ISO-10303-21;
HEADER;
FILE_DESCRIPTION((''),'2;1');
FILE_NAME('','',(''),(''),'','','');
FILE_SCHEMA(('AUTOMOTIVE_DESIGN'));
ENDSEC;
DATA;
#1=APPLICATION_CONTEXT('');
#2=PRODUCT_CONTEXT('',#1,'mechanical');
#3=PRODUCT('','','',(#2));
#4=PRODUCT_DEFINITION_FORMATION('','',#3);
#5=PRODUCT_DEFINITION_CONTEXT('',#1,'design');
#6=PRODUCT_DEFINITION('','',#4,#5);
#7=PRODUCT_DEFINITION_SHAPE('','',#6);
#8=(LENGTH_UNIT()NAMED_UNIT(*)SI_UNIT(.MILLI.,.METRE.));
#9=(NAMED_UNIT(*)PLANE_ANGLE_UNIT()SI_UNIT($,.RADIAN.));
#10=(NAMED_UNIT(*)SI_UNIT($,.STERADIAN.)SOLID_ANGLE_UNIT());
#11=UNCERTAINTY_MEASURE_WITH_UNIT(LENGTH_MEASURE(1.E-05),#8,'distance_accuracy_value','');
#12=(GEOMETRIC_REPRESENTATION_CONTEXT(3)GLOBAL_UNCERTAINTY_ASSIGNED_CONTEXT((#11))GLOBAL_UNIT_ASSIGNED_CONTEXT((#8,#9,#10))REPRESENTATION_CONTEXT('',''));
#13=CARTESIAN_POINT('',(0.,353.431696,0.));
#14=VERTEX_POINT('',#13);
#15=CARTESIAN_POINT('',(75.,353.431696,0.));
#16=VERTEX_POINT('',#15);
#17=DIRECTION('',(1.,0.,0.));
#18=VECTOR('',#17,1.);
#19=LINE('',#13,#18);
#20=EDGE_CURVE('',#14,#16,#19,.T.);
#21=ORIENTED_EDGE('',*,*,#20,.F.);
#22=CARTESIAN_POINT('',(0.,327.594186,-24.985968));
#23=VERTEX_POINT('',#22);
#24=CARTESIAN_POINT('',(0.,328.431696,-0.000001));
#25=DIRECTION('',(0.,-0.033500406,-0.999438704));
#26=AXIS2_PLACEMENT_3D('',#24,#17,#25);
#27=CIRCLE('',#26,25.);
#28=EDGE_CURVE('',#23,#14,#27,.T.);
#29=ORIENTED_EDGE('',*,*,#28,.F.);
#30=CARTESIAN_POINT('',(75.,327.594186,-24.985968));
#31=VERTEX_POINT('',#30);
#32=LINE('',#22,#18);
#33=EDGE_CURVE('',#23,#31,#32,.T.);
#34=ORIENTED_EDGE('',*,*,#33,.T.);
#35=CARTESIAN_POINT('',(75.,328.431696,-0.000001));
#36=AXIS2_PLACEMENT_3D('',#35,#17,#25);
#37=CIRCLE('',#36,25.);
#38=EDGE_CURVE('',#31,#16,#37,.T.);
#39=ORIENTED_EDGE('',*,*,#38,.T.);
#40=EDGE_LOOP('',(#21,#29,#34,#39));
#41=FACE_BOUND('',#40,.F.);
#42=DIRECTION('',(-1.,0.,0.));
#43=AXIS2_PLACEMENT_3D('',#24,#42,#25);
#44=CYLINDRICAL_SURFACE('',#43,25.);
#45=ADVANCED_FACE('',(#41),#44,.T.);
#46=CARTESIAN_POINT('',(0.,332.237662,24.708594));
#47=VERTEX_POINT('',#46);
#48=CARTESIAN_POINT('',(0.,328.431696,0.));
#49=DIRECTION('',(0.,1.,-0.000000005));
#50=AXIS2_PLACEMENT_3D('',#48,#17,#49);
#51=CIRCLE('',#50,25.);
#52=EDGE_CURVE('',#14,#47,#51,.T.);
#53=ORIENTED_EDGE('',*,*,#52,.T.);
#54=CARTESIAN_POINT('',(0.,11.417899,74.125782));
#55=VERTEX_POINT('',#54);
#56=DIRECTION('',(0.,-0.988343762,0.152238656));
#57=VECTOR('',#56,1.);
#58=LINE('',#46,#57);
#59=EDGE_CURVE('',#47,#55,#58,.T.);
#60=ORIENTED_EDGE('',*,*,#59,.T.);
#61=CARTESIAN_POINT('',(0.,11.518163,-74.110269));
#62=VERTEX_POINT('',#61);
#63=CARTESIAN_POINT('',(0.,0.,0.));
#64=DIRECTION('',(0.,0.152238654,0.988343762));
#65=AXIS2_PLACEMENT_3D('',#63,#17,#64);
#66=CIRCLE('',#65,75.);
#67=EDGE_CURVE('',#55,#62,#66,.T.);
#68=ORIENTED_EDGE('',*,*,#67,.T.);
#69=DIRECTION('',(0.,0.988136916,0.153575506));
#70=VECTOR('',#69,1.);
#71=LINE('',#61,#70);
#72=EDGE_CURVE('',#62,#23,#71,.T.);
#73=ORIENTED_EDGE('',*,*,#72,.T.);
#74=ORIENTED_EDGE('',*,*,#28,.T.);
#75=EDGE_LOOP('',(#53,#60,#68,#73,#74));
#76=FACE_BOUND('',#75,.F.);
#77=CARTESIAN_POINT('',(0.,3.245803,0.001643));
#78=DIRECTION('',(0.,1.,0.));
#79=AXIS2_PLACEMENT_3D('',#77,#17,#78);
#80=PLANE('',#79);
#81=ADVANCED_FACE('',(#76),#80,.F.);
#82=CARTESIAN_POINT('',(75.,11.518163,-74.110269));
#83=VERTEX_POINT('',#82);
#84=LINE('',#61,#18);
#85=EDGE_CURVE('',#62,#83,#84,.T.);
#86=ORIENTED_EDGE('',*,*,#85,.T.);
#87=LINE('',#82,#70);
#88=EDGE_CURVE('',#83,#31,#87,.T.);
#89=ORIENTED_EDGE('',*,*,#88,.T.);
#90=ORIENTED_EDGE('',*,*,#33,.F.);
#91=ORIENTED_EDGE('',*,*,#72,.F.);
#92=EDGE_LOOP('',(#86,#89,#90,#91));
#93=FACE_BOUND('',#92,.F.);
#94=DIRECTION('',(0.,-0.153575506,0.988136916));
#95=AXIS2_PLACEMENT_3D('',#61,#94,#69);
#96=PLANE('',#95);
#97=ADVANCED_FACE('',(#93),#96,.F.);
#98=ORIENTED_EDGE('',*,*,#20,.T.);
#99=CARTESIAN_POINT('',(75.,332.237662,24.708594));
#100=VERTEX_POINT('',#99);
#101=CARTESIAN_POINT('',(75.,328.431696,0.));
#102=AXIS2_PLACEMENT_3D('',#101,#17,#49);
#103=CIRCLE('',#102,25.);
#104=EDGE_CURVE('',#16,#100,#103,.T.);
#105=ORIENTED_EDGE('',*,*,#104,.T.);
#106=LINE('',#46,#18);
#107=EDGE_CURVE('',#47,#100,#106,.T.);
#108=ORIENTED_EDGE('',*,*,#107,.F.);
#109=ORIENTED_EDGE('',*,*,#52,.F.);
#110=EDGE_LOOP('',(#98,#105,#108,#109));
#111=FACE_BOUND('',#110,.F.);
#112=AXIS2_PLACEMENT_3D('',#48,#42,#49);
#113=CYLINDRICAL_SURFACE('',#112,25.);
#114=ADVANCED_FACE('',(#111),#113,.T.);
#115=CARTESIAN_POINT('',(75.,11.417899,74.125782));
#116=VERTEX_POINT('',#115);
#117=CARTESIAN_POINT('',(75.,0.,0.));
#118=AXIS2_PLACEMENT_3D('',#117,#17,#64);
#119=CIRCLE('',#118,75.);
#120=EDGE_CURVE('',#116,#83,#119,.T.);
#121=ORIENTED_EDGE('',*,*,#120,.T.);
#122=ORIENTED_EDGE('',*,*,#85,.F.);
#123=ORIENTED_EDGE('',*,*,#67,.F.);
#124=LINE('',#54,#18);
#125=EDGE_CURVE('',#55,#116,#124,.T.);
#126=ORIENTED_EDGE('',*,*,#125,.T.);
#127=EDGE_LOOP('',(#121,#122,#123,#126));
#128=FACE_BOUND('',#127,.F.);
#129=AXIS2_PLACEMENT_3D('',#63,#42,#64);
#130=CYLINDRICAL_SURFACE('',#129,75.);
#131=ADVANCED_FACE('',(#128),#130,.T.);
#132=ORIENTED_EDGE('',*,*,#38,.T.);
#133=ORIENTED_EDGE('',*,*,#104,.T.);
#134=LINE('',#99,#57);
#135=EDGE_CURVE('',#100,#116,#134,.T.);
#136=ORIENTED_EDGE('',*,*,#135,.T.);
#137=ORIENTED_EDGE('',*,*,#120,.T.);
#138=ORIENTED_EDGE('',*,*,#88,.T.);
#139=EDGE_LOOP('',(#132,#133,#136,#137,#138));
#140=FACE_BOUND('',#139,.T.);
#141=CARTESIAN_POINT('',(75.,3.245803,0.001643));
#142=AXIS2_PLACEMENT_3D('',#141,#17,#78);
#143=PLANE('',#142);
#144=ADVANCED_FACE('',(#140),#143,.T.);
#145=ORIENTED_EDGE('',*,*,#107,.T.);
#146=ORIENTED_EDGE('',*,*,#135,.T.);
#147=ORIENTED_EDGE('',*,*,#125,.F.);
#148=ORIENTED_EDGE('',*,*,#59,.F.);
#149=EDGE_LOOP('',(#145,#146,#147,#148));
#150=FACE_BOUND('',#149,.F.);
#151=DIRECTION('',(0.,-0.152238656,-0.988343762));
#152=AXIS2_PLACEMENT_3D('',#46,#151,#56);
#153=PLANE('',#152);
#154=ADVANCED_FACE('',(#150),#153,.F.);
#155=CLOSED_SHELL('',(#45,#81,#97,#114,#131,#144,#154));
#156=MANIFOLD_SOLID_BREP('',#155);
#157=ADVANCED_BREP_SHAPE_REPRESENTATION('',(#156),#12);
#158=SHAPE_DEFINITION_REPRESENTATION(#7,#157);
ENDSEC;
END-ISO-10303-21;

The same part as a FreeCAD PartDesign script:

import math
import FreeCAD as App
import Part
import Sketcher

doc = App.newDocument("Part")
body = doc.addObject("PartDesign::Body", "Body")

# Sketch on YZ plane
sketch1 = body.newObject("Sketcher::SketchObject", "Sketch")
sketch1.AttachmentSupport = (doc.getObject("YZ_Plane"), [""])
sketch1.MapMode = "FlatFace"
sketch1.addGeometry([
    Part.ArcOfCircle(Part.Circle(App.Vector(0, 0, 0), App.Vector(0, 0, 1), 75), math.radians(81), math.radians(279)),  # 0
    Part.LineSegment(App.Vector(12, -74, 0), App.Vector(328, -25, 0)),  # 1
    Part.ArcOfCircle(Part.Circle(App.Vector(328, 0, 0), App.Vector(0, 0, 1), 25), math.radians(-92), math.radians(0)),  # 2
    Part.ArcOfCircle(Part.Circle(App.Vector(328, 0, 0), App.Vector(0, 0, 1), 25), math.radians(0), math.radians(81)),  # 3
    Part.LineSegment(App.Vector(332, 25, 0), App.Vector(11, 74, 0)),  # 4
], False)
sketch1.addConstraint([
    Sketcher.Constraint("Tangent", 0, 2, 1, 1),
    Sketcher.Constraint("Coincident", 1, 2, 2, 1),
    Sketcher.Constraint("Tangent", 2, 2, 3, 1),
    Sketcher.Constraint("Tangent", 3, 2, 4, 1),
    Sketcher.Constraint("Tangent", 4, 2, 0, 1),
    Sketcher.Constraint("Coincident", 0, 3, -1, 1),
    Sketcher.Constraint("Equal", 2, 3),
    Sketcher.Constraint("PointOnObject", 2, 3, -1),
    Sketcher.Constraint("PointOnObject", 2, 2, -1),
    Sketcher.Constraint("Radius", 0, 75.0),
    Sketcher.Constraint("Radius", 2, 25.0),
    Sketcher.Constraint("DistanceX", -1, 1, 4, 2, 11.417899),
    Sketcher.Constraint("DistanceY", 0, 2, 1, 2, 49.124301),
])
pad1 = body.newObject("PartDesign::Pad", "Pad")
pad1.Profile = sketch1
pad1.Length = 75

doc.recompute()
